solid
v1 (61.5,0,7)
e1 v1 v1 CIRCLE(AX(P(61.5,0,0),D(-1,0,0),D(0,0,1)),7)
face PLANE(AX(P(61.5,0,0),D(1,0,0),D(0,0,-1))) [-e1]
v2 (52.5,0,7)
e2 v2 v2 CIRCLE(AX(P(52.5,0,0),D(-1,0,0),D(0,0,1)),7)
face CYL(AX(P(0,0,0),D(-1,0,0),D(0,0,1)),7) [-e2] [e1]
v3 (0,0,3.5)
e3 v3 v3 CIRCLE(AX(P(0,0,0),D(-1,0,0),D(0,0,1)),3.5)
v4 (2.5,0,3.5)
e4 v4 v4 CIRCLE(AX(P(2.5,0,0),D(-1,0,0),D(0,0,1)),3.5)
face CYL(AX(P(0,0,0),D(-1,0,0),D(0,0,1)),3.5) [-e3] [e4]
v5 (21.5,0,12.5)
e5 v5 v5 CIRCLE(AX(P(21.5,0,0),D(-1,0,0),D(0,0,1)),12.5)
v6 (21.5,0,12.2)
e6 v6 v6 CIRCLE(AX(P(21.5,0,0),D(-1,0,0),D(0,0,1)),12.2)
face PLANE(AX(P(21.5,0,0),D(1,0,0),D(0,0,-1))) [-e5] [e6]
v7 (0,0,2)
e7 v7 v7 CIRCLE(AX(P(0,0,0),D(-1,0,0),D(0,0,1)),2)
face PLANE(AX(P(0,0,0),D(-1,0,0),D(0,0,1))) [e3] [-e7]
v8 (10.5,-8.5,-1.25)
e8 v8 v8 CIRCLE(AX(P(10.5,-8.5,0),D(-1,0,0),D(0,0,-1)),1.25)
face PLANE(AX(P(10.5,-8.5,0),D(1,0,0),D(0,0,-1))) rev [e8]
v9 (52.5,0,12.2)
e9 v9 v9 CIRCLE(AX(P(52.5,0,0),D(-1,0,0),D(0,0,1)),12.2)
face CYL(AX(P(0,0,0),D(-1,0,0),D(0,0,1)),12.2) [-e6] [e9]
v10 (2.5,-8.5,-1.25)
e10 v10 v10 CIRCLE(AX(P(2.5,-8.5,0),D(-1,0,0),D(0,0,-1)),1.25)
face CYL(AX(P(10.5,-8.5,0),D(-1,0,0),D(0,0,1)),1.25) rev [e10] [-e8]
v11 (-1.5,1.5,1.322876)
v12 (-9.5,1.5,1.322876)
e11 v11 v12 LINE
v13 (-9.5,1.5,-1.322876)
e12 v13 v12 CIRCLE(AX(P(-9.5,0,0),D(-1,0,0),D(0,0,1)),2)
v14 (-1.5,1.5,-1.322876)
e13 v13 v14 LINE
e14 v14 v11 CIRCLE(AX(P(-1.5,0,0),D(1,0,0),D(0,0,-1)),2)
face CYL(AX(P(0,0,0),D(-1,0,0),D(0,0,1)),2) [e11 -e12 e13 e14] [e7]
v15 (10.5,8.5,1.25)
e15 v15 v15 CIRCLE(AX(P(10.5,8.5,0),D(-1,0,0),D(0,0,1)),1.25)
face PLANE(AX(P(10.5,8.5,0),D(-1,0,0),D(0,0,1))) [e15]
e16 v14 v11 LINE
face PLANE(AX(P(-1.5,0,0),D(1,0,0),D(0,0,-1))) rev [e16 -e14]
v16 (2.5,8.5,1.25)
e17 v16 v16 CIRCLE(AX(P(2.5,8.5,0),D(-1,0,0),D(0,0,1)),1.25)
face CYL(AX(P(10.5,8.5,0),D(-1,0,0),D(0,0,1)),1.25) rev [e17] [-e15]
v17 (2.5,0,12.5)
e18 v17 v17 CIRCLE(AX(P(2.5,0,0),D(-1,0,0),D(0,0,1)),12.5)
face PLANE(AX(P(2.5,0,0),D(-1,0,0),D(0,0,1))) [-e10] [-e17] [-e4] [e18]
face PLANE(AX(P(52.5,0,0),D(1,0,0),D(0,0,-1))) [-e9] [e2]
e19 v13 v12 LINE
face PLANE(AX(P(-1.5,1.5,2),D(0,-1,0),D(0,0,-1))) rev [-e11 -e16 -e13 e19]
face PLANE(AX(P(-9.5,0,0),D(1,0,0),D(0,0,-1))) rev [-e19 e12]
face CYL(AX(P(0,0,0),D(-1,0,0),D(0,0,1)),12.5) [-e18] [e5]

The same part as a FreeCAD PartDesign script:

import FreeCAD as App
import Part
import Sketcher
from FreeCAD import Vector

doc = App.newDocument("Part")
body = doc.addObject("PartDesign::Body", "Body")

sketch1 = body.newObject("Sketcher::SketchObject", "Sketch")
sketch1.AttachmentSupport = (doc.getObject("XY_Plane"), [""])
sketch1.MapMode = "FlatFace"
sketch1.addGeometry([
    Part.LineSegment(Vector(-9.5, 2, 0), Vector(-9.5, 0, 0)),
    Part.LineSegment(Vector(-9.5, 0, 0), Vector(61.5, 0, 0)),
    Part.LineSegment(Vector(61.5, 0, 0), Vector(61.5, 7, 0)),
    Part.LineSegment(Vector(61.5, 7, 0), Vector(52.5, 7, 0)),
    Part.LineSegment(Vector(52.5, 7, 0), Vector(52.5, 12.2, 0)),
    Part.LineSegment(Vector(52.5, 12.2, 0), Vector(21.5, 12.2, 0)),
    Part.LineSegment(Vector(21.5, 12.2, 0), Vector(21.5, 12.5, 0)),
    Part.LineSegment(Vector(21.5, 12.5, 0), Vector(2.5, 12.5, 0)),
    Part.LineSegment(Vector(2.5, 12.5, 0), Vector(2.5, 3.5, 0)),
    Part.LineSegment(Vector(2.5, 3.5, 0), Vector(0, 3.5, 0)),
    Part.LineSegment(Vector(0, 3.5, 0), Vector(0, 2, 0)),
    Part.LineSegment(Vector(0, 2, 0), Vector(-9.5, 2, 0)),
], False)
sketch1.addConstraint([
    Sketcher.Constraint("Coincident", 0, 2, 1, 1),
    Sketcher.Constraint("Coincident", 1, 2, 2, 1),
    Sketcher.Constraint("Coincident", 2, 2, 3, 1),
    Sketcher.Constraint("Coincident", 3, 2, 4, 1),
    Sketcher.Constraint("Coincident", 4, 2, 5, 1),
    Sketcher.Constraint("Coincident", 5, 2, 6, 1),
    Sketcher.Constraint("Coincident", 6, 2, 7, 1),
    Sketcher.Constraint("Coincident", 7, 2, 8, 1),
    Sketcher.Constraint("Coincident", 8, 2, 9, 1),
    Sketcher.Constraint("Coincident", 9, 2, 10, 1),
    Sketcher.Constraint("Coincident", 10, 2, 11, 1),
    Sketcher.Constraint("Coincident", 11, 2, 0, 1),
    Sketcher.Constraint("Vertical", 0),
    Sketcher.Constraint("Horizontal", 1),
    Sketcher.Constraint("Vertical", 2),
    Sketcher.Constraint("Horizontal", 3),
    Sketcher.Constraint("Vertical", 4),
    Sketcher.Constraint("Horizontal", 5),
    Sketcher.Constraint("Vertical", 6),
    Sketcher.Constraint("Horizontal", 7),
    Sketcher.Constraint("Vertical", 8),
    Sketcher.Constraint("Horizontal", 9),
    Sketcher.Constraint("Vertical", 10),
    Sketcher.Constraint("Horizontal", 11),
    Sketcher.Constraint("PointOnObject", 0, 2, -1),
    Sketcher.Constraint("PointOnObject", 9, 2, -2),
    Sketcher.Constraint("Equal", 3, 8),
    Sketcher.Constraint("DistanceX", 1, 1, 1, 2, 71.0),
    Sketcher.Constraint("DistanceX", 3, 2, 3, 1, 9.0),
    Sketcher.Constraint("DistanceX", 5, 2, 5, 1, 31.0),
    Sketcher.Constraint("DistanceX", 7, 2, 7, 1, 19.0),
    Sketcher.Constraint("DistanceY", 0, 2, 0, 1, 2.0),
    Sketcher.Constraint("DistanceY", 2, 1, 2, 2, 7.0),
    Sketcher.Constraint("DistanceX", 9, 2, 9, 1, 2.5),
    Sketcher.Constraint("DistanceY", 4, 1, 4, 2, 5.2),
    Sketcher.Constraint("DistanceY", 6, 1, 6, 2, 0.3),
])
revolution = body.newObject("PartDesign::Revolution", "Revolution")
revolution.Profile = sketch1
revolution.ReferenceAxis = (sketch1, ["H_Axis"])
revolution.Angle = 360

sketch2 = body.newObject("Sketcher::SketchObject", "Sketch001")
sketch2.AttachmentSupport = (doc.getObject("YZ_Plane"), [""])
sketch2.MapMode = "FlatFace"
sketch2.AttachmentOffset = App.Placement(Vector(0, 0, -9.5), App.Rotation())
sketch2.addGeometry([
    Part.LineSegment(Vector(2, -2, 0), Vector(1.5, -2, 0)),
    Part.LineSegment(Vector(1.5, -2, 0), Vector(1.5, 2, 0)),
    Part.LineSegment(Vector(1.5, 2, 0), Vector(2, 2, 0)),
    Part.LineSegment(Vector(2, 2, 0), Vector(2, -2, 0)),
], False)
sketch2.addConstraint([
    Sketcher.Constraint("Coincident", 0, 2, 1, 1),
    Sketcher.Constraint("Coincident", 1, 2, 2, 1),
    Sketcher.Constraint("Coincident", 2, 2, 3, 1),
    Sketcher.Constraint("Coincident", 3, 2, 0, 1),
    Sketcher.Constraint("Horizontal", 0),
    Sketcher.Constraint("Vertical", 1),
    Sketcher.Constraint("Horizontal", 2),
    Sketcher.Constraint("Vertical", 3),
    Sketcher.Constraint("DistanceY", 1, 1, 1, 2, 4.0),
    Sketcher.Constraint("DistanceX", 0, 2, 0, 1, 0.5),
    Sketcher.Constraint("DistanceY", 0, 2, -1, 1, 2.0),
    Sketcher.Constraint("DistanceX", -1, 1, 2, 2, 2.0),
])
pocket1 = body.newObject("PartDesign::Pocket", "Pocket")
pocket1.Profile = sketch2
pocket1.Length = 8
pocket1.Reversed = True

sketch3 = body.newObject("Sketcher::SketchObject", "Sketch002")
sketch3.AttachmentSupport = (doc.getObject("YZ_Plane"), [""])
sketch3.MapMode = "FlatFace"
sketch3.AttachmentOffset = App.Placement(Vector(0, 0, 2.5), App.Rotation())
sketch3.addGeometry([
    Part.Circle(Vector(8.5, 0, 0), Vector(0, 0, 1), 1.25),
    Part.Circle(Vector(-8.5, 0, 0), Vector(0, 0, 1), 1.25),
], False)
sketch3.addConstraint([
    Sketcher.Constraint("Equal", 0, 1),
    Sketcher.Constraint("Symmetric", 0, 3, 1, 3, -1, 1),
    Sketcher.Constraint("PointOnObject", 0, 3, -1),
    Sketcher.Constraint("Diameter", 0, 2.5),
    Sketcher.Constraint("DistanceX", 1, 3, 0, 3, 17.0),
])
pocket2 = body.newObject("PartDesign::Pocket", "Pocket001")
pocket2.Profile = sketch3
pocket2.Length = 8
pocket2.Reversed = True

doc.recompute()
